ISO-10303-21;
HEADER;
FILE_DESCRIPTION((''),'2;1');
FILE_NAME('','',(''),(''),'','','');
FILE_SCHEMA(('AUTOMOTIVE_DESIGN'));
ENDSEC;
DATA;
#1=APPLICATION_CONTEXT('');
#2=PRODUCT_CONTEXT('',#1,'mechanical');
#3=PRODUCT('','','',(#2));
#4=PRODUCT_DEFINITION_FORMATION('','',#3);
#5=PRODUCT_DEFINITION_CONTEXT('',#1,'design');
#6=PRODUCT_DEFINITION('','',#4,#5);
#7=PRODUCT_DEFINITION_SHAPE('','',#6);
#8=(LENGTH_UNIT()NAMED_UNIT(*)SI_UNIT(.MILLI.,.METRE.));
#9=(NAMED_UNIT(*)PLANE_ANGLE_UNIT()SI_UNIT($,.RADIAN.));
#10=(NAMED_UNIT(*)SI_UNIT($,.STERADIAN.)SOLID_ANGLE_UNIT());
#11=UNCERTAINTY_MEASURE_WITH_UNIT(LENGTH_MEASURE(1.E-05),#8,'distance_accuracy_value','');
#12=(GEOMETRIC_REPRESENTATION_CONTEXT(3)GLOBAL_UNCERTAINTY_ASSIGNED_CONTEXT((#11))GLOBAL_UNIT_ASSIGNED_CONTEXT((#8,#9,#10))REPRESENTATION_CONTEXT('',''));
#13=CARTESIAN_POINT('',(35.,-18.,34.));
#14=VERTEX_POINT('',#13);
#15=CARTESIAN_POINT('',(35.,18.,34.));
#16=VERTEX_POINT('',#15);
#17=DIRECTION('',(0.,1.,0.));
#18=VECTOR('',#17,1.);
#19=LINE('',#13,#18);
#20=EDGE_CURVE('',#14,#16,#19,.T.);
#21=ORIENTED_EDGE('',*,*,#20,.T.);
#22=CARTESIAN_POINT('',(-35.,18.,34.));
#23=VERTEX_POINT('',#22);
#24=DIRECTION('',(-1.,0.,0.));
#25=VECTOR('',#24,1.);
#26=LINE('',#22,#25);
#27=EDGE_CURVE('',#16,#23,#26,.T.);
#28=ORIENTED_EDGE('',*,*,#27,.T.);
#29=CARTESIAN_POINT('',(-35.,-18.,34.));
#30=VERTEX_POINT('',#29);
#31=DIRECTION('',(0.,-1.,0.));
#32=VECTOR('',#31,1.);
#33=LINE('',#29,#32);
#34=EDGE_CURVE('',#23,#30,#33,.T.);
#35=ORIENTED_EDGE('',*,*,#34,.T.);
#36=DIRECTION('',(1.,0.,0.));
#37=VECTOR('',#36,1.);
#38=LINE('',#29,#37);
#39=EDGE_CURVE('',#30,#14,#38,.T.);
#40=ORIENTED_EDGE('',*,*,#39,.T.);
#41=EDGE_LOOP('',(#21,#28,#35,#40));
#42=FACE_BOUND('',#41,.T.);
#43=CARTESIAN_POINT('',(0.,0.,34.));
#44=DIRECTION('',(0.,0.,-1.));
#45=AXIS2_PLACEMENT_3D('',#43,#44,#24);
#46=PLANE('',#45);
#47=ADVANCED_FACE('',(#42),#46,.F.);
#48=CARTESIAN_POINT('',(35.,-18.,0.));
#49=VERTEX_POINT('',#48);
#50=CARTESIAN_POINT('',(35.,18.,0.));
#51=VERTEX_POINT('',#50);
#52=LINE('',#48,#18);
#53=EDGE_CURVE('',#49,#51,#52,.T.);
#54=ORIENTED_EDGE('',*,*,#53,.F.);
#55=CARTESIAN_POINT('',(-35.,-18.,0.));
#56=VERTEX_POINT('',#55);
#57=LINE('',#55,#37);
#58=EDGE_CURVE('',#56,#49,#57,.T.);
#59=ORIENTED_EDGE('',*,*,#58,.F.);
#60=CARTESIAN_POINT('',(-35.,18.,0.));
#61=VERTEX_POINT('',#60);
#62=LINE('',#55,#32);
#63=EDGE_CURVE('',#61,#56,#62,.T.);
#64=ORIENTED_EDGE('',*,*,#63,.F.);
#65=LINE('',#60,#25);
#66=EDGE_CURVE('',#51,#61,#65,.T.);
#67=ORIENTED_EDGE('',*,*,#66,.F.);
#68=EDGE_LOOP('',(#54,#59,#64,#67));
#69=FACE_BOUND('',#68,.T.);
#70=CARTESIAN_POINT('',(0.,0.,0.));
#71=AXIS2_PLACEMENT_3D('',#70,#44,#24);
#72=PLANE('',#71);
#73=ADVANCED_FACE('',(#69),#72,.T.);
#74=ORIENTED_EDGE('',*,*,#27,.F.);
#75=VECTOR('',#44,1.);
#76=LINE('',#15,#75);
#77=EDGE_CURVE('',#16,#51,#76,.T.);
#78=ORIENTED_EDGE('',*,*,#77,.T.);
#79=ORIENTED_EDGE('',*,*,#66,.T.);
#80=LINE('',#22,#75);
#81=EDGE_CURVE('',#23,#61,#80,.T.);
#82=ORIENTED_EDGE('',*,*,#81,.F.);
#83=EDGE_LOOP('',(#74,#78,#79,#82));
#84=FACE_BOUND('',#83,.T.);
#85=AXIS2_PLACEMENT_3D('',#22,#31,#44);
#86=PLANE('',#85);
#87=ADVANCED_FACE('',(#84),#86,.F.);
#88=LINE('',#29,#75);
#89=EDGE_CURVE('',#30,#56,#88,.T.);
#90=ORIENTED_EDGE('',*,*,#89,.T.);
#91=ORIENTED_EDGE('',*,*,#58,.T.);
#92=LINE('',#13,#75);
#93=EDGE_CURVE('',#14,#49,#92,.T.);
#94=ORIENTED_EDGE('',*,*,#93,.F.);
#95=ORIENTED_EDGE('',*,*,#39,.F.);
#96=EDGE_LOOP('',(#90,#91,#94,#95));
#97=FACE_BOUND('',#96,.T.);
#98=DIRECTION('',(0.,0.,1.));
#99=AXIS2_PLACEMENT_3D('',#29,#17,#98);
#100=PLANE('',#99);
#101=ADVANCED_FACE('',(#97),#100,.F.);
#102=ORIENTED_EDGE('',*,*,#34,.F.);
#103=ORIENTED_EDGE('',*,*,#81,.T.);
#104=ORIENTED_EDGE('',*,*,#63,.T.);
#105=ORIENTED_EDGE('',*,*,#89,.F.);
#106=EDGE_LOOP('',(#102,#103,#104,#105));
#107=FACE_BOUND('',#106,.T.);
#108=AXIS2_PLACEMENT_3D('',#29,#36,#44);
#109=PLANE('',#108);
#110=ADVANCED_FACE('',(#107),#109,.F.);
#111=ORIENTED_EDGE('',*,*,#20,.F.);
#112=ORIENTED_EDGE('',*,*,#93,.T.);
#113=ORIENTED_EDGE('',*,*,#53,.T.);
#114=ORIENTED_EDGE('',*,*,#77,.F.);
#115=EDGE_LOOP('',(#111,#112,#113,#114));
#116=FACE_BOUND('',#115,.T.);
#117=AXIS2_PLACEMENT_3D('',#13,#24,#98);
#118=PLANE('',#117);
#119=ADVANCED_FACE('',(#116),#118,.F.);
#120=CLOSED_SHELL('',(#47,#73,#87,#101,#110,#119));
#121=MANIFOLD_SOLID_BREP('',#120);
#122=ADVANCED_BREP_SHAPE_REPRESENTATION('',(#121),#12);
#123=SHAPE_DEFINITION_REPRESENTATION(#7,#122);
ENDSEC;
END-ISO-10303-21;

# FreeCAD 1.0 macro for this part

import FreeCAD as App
import Part
import Sketcher

doc = App.newDocument("Part")
body = doc.addObject("PartDesign::Body", "Body")

# Sketch on XY plane
sketch1 = body.newObject("Sketcher::SketchObject", "Sketch")
sketch1.AttachmentSupport = (doc.getObject("XY_Plane"), [""])
sketch1.MapMode = "FlatFace"
sketch1.addGeometry(Part.LineSegment(App.Vector(-35, 18, 0), App.Vector(-35, -18, 0)), False)
sketch1.addGeometry(Part.LineSegment(App.Vector(-35, -18, 0), App.Vector(35, -18, 0)), False)
sketch1.addGeometry(Part.LineSegment(App.Vector(35, -18, 0), App.Vector(35, 18, 0)), False)
sketch1.addGeometry(Part.LineSegment(App.Vector(35, 18, 0), App.Vector(-35, 18, 0)), False)
sketch1.addConstraint(Sketcher.Constraint("Coincident", 0, 2, 1, 1))
sketch1.addConstraint(Sketcher.Constraint("Coincident", 1, 2, 2, 1))
sketch1.addConstraint(Sketcher.Constraint("Coincident", 2, 2, 3, 1))
sketch1.addConstraint(Sketcher.Constraint("Coincident", 3, 2, 0, 1))
sketch1.addConstraint(Sketcher.Constraint("Vertical", 0))
sketch1.addConstraint(Sketcher.Constraint("Horizontal", 1))
sketch1.addConstraint(Sketcher.Constraint("Vertical", 2))
sketch1.addConstraint(Sketcher.Constraint("Horizontal", 3))
sketch1.addConstraint(Sketcher.Constraint("Symmetric", 0, 2, 2, 2, -1, 1))
sketch1.addConstraint(Sketcher.Constraint("DistanceX", 1, 1, 1, 2, 70.0))
sketch1.addConstraint(Sketcher.Constraint("DistanceY", 0, 2, 0, 1, 36.0))
pad1 = body.newObject("PartDesign::Pad", "Pad")
pad1.Profile = sketch1
pad1.Length = 34

doc.recompute()
